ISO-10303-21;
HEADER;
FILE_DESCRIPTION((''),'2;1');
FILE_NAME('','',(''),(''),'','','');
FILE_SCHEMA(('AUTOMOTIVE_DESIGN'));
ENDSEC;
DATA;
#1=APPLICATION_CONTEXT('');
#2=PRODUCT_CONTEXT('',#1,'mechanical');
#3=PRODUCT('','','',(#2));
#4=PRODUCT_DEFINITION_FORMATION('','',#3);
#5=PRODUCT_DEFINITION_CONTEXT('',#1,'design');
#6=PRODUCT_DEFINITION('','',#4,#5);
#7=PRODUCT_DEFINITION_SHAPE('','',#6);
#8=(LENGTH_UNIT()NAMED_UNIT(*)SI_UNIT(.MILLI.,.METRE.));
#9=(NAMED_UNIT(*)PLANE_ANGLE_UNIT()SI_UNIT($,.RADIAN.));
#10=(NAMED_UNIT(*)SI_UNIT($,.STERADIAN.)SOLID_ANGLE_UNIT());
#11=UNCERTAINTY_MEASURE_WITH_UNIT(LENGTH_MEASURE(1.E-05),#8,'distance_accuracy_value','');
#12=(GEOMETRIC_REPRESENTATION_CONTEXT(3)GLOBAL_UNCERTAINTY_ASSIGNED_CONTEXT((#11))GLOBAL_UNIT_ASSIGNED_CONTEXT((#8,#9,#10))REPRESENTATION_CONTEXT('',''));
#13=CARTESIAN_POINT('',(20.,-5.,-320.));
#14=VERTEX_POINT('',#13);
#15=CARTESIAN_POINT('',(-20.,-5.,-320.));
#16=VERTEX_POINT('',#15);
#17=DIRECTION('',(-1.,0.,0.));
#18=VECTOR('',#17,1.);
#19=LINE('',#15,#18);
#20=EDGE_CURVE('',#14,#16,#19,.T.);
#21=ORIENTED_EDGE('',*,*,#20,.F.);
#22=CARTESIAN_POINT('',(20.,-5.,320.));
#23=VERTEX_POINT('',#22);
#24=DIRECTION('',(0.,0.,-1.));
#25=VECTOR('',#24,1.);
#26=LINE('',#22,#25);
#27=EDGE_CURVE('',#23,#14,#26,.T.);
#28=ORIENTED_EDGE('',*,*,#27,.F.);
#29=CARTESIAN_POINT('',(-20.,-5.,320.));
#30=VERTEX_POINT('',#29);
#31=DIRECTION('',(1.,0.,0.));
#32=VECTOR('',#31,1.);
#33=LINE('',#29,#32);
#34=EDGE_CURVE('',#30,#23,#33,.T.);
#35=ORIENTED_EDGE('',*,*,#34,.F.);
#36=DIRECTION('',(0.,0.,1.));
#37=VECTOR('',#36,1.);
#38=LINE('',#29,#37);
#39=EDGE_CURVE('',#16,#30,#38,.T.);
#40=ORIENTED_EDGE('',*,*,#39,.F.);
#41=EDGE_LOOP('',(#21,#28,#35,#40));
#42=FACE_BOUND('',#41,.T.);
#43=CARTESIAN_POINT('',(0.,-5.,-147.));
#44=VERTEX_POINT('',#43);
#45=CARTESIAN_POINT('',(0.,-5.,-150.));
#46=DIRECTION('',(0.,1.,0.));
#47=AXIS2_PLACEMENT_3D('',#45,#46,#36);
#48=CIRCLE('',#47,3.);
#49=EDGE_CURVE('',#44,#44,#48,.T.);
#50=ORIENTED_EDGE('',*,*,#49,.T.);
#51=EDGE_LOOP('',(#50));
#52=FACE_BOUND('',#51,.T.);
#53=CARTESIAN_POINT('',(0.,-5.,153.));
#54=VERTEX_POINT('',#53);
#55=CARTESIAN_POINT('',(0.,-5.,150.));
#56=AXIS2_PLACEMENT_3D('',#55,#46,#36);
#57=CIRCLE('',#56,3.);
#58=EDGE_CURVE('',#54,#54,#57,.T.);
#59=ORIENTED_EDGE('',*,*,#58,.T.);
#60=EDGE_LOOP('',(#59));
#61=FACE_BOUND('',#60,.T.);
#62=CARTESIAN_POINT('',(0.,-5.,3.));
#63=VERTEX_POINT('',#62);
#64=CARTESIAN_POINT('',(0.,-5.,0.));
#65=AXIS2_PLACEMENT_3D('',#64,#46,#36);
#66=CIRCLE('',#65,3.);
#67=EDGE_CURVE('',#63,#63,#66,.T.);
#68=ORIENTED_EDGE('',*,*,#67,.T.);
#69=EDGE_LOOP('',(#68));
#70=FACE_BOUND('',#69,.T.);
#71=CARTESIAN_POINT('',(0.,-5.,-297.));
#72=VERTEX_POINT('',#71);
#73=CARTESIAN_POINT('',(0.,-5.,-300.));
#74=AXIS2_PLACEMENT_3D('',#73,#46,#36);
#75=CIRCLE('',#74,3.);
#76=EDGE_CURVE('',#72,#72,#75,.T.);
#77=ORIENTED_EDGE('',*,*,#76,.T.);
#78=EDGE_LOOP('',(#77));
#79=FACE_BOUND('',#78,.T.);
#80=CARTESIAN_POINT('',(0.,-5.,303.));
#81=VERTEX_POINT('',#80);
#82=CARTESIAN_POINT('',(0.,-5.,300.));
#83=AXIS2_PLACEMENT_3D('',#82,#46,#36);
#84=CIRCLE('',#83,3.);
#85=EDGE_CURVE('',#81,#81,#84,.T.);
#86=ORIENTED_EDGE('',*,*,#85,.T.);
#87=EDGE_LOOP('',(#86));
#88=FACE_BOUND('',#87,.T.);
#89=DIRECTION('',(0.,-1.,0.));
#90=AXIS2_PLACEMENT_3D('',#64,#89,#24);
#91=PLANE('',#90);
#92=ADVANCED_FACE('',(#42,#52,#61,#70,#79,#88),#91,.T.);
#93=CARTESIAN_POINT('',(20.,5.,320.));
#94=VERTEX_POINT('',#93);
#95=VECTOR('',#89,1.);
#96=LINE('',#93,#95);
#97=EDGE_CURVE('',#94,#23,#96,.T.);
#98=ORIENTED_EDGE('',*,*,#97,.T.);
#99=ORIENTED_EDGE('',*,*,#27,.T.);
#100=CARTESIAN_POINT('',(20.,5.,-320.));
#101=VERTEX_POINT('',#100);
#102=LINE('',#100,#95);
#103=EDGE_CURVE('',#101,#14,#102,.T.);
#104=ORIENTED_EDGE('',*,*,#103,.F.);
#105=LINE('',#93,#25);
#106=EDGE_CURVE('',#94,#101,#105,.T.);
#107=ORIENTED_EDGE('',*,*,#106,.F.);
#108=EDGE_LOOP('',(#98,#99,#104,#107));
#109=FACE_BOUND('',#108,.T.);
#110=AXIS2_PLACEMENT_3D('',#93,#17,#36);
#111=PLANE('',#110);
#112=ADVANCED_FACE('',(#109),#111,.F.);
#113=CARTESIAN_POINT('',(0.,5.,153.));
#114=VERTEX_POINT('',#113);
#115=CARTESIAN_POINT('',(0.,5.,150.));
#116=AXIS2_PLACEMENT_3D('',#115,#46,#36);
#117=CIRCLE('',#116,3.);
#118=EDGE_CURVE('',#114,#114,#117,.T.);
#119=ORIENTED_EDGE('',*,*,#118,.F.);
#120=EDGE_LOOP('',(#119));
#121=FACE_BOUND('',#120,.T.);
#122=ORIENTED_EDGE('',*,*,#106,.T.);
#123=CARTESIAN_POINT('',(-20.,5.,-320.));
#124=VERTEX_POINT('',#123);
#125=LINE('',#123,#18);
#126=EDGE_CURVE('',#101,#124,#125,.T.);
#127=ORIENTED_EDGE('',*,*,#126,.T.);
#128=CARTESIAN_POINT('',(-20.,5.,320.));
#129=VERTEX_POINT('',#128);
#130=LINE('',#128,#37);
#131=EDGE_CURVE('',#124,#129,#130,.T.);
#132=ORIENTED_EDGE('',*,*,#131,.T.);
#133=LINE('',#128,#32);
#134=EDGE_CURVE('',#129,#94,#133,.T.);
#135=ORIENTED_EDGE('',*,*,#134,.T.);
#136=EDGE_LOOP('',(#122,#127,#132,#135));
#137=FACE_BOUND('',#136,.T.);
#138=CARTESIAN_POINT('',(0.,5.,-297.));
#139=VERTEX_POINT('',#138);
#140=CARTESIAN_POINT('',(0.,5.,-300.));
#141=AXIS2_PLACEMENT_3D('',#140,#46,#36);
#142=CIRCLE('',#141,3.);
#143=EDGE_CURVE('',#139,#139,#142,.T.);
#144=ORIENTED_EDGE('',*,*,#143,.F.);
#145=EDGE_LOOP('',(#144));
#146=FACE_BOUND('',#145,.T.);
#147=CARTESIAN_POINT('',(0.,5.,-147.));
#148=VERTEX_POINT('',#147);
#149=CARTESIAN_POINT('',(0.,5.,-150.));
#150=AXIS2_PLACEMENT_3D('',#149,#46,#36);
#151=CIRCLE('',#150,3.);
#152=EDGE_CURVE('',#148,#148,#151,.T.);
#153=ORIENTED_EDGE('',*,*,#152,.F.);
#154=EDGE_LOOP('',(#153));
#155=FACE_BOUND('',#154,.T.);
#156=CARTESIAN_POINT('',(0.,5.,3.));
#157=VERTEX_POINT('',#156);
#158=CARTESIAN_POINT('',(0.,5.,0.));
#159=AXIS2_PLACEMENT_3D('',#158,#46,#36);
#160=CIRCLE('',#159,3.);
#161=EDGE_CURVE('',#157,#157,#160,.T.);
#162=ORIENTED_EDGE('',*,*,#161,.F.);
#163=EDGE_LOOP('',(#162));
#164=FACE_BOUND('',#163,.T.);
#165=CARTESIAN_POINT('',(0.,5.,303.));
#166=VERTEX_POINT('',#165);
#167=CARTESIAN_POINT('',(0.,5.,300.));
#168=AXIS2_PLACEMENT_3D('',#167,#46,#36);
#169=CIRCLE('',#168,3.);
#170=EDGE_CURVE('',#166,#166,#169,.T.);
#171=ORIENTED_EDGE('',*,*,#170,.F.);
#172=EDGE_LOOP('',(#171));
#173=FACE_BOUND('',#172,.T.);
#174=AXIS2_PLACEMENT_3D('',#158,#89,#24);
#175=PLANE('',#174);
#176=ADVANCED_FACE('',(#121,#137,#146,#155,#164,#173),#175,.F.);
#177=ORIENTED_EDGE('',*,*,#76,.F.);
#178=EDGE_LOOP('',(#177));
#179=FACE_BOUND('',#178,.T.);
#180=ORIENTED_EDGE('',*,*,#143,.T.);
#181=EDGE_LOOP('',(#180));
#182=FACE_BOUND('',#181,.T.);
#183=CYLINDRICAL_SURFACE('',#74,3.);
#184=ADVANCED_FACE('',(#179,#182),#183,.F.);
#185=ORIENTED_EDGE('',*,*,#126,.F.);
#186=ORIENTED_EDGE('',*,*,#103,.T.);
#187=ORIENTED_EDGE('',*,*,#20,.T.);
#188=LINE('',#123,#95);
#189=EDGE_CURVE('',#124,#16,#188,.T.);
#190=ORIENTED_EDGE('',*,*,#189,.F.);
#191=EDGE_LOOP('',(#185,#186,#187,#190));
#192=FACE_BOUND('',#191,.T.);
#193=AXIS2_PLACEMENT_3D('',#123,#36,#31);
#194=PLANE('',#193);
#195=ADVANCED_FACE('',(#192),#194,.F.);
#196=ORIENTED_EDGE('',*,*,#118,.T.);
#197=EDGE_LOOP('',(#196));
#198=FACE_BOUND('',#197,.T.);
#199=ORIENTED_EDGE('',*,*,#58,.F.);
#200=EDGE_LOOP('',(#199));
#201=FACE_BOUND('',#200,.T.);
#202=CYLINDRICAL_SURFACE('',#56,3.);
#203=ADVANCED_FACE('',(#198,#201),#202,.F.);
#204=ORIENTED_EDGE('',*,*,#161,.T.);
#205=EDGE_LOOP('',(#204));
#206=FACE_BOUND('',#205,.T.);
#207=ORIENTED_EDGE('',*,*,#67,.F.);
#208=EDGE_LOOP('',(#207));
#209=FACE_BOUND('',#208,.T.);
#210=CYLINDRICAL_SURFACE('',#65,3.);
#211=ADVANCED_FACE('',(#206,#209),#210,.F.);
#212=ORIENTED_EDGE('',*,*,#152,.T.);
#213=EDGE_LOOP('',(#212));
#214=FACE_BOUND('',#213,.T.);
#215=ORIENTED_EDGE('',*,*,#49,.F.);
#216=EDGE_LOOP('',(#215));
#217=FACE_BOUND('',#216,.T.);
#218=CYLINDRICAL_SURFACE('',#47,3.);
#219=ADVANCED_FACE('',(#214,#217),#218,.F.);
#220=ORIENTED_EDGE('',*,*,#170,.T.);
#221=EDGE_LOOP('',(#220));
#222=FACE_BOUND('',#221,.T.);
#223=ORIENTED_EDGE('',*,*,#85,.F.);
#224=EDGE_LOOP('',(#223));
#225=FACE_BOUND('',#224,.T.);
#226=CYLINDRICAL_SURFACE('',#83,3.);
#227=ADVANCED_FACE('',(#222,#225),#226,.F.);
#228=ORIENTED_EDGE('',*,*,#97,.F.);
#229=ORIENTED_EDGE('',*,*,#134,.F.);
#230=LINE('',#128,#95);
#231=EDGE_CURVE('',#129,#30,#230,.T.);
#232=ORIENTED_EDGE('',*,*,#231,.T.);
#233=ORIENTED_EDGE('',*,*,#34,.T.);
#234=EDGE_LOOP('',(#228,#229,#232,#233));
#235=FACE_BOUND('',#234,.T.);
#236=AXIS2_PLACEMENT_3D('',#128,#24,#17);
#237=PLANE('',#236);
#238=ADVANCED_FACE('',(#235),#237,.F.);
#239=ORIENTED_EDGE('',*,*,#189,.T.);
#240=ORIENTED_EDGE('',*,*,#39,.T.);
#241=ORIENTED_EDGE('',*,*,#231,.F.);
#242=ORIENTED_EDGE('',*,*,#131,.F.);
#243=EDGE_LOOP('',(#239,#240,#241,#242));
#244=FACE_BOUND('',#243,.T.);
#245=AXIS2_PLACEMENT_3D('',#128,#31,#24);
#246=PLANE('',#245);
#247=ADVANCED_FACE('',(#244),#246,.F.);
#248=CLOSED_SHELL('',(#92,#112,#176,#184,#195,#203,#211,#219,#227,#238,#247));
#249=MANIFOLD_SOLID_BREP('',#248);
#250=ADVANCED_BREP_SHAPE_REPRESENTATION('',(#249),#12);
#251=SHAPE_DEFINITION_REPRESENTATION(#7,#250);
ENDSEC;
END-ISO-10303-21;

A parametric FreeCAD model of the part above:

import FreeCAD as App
import Part
import Sketcher
from FreeCAD import Vector

doc = App.newDocument("Part")
body = doc.addObject("PartDesign::Body", "Body")

sketch1 = body.newObject("Sketcher::SketchObject", "Sketch")
sketch1.AttachmentSupport = (doc.getObject("XZ_Plane"), [""])
sketch1.MapMode = "FlatFace"
sketch1.addGeometry([
    Part.LineSegment(Vector(-20, -320, 0), Vector(-20, 320, 0)),
    Part.LineSegment(Vector(-20, 320, 0), Vector(20, 320, 0)),
    Part.LineSegment(Vector(20, 320, 0), Vector(20, -320, 0)),
    Part.LineSegment(Vector(20, -320, 0), Vector(-20, -320, 0)),
], False)
sketch1.addConstraint([
    Sketcher.Constraint("Coincident", 0, 2, 1, 1),
    Sketcher.Constraint("Coincident", 1, 2, 2, 1),
    Sketcher.Constraint("Coincident", 2, 2, 3, 1),
    Sketcher.Constraint("Coincident", 3, 2, 0, 1),
    Sketcher.Constraint("Vertical", 0),
    Sketcher.Constraint("Horizontal", 1),
    Sketcher.Constraint("Vertical", 2),
    Sketcher.Constraint("Horizontal", 3),
    Sketcher.Constraint("Symmetric", 0, 2, 2, 2, -1, 1),
    Sketcher.Constraint("DistanceX", 1, 1, 1, 2, 40.0),
    Sketcher.Constraint("DistanceY", 0, 1, 0, 2, 640.0),
])
pad1 = body.newObject("PartDesign::Pad", "Pad")
pad1.Profile = sketch1
pad1.Length = 10
pad1.Midplane = True

sketch2 = body.newObject("Sketcher::SketchObject", "Sketch001")
sketch2.AttachmentSupport = (doc.getObject("XZ_Plane"), [""])
sketch2.MapMode = "FlatFace"
sketch2.AttachmentOffset = App.Placement(Vector(0, 0, -5), App.Rotation())
sketch2.addGeometry(Part.Circle(Vector(0, 300, 0), Vector(0, 0, 1), 3), False)
sketch2.addConstraint([
    Sketcher.Constraint("PointOnObject", 0, 3, -2),
    Sketcher.Constraint("Diameter", 0, 6.0),
    Sketcher.Constraint("DistanceY", -1, 1, 0, 3, 300.0),
])
pocket1 = body.newObject("PartDesign::Pocket", "Pocket")
pocket1.Profile = sketch2
pocket1.Type = "ThroughAll"
pocket1.Reversed = True
doc.recompute()

linearpattern = body.newObject("PartDesign::LinearPattern", "LinearPattern")
linearpattern.Originals = [pocket1]
linearpattern.Direction = (doc.getObject("Z_Axis"), [""])
linearpattern.Mode = "offset"
linearpattern.Offset = 150
linearpattern.Occurrences = 5
linearpattern.Reversed = True
body.Tip = linearpattern

doc.recompute()
